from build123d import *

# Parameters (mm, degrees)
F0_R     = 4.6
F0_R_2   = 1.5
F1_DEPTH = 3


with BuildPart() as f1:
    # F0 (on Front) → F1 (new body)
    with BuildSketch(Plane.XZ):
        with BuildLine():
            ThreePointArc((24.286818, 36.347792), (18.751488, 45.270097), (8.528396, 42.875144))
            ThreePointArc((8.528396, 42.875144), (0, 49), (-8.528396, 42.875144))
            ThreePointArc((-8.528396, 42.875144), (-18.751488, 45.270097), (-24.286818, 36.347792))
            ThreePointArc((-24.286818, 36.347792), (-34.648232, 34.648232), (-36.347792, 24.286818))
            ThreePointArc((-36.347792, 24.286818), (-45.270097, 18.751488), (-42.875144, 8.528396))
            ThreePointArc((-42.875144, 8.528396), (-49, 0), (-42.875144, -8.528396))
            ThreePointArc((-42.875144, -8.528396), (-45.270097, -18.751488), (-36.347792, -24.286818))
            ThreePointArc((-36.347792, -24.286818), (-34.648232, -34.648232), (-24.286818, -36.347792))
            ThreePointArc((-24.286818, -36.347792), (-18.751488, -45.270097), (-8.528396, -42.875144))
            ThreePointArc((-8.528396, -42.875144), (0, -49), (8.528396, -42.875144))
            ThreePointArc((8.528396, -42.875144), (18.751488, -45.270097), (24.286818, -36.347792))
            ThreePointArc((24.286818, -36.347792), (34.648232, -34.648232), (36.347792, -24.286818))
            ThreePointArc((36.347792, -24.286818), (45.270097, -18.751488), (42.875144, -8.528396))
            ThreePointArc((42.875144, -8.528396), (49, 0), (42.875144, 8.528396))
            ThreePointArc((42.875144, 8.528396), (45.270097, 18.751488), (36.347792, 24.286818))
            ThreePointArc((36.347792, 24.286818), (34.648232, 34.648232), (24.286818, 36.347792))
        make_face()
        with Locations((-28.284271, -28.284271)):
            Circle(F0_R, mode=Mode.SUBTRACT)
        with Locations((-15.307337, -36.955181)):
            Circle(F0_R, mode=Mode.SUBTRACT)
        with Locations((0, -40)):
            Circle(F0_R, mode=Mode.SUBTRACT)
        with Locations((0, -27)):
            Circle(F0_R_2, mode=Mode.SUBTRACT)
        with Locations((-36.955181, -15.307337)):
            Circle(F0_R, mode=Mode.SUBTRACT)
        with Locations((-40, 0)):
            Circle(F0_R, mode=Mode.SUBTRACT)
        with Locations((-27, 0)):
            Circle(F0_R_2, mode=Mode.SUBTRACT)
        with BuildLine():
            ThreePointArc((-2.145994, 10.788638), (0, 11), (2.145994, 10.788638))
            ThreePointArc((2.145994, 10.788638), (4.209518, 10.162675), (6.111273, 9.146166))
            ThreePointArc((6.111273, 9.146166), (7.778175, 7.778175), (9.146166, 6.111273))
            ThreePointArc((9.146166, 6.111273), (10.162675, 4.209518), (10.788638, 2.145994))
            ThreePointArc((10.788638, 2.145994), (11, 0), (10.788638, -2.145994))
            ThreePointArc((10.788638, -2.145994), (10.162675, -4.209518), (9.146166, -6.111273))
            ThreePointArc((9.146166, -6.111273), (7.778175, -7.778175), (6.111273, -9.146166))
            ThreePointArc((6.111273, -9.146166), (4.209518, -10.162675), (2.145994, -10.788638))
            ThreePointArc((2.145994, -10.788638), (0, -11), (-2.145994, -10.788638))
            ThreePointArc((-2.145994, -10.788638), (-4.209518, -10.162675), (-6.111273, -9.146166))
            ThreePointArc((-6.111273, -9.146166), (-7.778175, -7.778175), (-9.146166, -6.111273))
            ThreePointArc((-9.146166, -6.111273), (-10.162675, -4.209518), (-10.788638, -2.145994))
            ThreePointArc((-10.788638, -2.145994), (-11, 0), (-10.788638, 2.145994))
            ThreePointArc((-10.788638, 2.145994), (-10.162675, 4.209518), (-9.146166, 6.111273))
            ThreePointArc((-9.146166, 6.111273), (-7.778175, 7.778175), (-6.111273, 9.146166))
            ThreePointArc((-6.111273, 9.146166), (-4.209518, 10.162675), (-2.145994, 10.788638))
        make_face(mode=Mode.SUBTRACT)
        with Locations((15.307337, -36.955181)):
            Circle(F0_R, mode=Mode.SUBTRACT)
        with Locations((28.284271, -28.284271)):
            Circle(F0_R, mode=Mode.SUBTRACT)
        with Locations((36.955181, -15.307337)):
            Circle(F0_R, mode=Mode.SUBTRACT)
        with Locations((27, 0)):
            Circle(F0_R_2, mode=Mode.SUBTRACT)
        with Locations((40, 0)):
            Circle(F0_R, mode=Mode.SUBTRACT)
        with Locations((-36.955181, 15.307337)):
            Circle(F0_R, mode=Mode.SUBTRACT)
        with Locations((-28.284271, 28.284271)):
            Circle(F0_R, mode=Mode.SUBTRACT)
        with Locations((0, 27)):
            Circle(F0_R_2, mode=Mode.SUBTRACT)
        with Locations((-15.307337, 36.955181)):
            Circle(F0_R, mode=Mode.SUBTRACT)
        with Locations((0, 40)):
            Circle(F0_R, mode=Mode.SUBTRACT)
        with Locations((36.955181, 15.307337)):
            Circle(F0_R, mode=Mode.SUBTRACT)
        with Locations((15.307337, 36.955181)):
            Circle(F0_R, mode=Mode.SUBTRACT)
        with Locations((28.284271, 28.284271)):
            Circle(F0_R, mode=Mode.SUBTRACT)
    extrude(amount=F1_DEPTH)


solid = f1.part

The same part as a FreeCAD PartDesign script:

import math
import FreeCAD as App
import Part
import Sketcher

doc = App.newDocument("Part")
body = doc.addObject("PartDesign::Body", "Body")

# Sketch on XZ plane
sketch1 = doc.addObject("Sketcher::SketchObject", "Sketch")
body.addObject(sketch1)
sketch1.AttachmentSupport = (doc.XZ_Plane, [""])
sketch1.MapMode = "FlatFace"
sketch1.addGeometry([
    Part.ArcOfCircle(Part.Circle(App.Vector(15.307337, 36.955181, 0), App.Vector(0, 0, 1), 9), math.radians(-3.869701), math.radians(138.869702)),  # 0
    Part.ArcOfCircle(Part.Circle(App.Vector(0, 40.000001, 0), App.Vector(0, 0, 1), 8.999999), math.radians(18.630295), math.radians(161.369705)),  # 1
    Part.ArcOfCircle(Part.Circle(App.Vector(-15.307337, 36.955181, 0), App.Vector(0, 0, 1), 9), math.radians(41.130298), math.radians(183.869701)),  # 2
    Part.ArcOfCircle(Part.Circle(App.Vector(-28.284271, 28.284271, 0), App.Vector(0, 0, 1), 9), math.radians(63.630301), math.radians(206.369699)),  # 3
    Part.ArcOfCircle(Part.Circle(App.Vector(-36.955181, 15.307337, 0), App.Vector(0, 0, 1), 9), math.radians(86.130299), math.radians(228.869702)),  # 4
    Part.ArcOfCircle(Part.Circle(App.Vector(-40.000001, 0, 0), App.Vector(0, 0, 1), 8.999999), math.radians(108.630295), math.radians(251.369705)),  # 5
    Part.ArcOfCircle(Part.Circle(App.Vector(-36.955181, -15.307337, 0), App.Vector(0, 0, 1), 9), math.radians(131.130298), math.radians(273.869701)),  # 6
    Part.ArcOfCircle(Part.Circle(App.Vector(-28.284271, -28.284271, 0), App.Vector(0, 0, 1), 9), math.radians(153.630301), math.radians(296.369699)),  # 7
    Part.ArcOfCircle(Part.Circle(App.Vector(-15.307337, -36.955181, 0), App.Vector(0, 0, 1), 9), math.radians(176.130299), math.radians(318.869702)),  # 8
    Part.ArcOfCircle(Part.Circle(App.Vector(0, -40.000001, 0), App.Vector(0, 0, 1), 8.999999), math.radians(-161.369705), math.radians(-18.630295)),  # 9
    Part.ArcOfCircle(Part.Circle(App.Vector(15.307337, -36.955181, 0), App.Vector(0, 0, 1), 9), math.radians(-138.869702), math.radians(3.869701)),  # 10
    Part.ArcOfCircle(Part.Circle(App.Vector(28.284271, -28.284271, 0), App.Vector(0, 0, 1), 9), math.radians(-116.369699), math.radians(26.369699)),  # 11
    Part.ArcOfCircle(Part.Circle(App.Vector(36.955181, -15.307337, 0), App.Vector(0, 0, 1), 9), math.radians(-93.869701), math.radians(48.869702)),  # 12
    Part.ArcOfCircle(Part.Circle(App.Vector(40.000001, 0, 0), App.Vector(0, 0, 1), 8.999999), math.radians(-71.369705), math.radians(71.369705)),  # 13
    Part.ArcOfCircle(Part.Circle(App.Vector(36.955181, 15.307337, 0), App.Vector(0, 0, 1), 9), math.radians(-48.869702), math.radians(93.869701)),  # 14
    Part.ArcOfCircle(Part.Circle(App.Vector(28.284271, 28.284271, 0), App.Vector(0, 0, 1), 9), math.radians(-26.369699), math.radians(116.369699)),  # 15
    Part.Circle(App.Vector(-28.284271, -28.284271, 0), App.Vector(0, 0, 1), 4.6),  # 16
    Part.Circle(App.Vector(-15.307337, -36.955181, 0), App.Vector(0, 0, 1), 4.6),  # 17
    Part.Circle(App.Vector(-36.955181, -15.307337, 0), App.Vector(0, 0, 1), 4.6),  # 18
    Part.Circle(App.Vector(0, -40, 0), App.Vector(0, 0, 1), 4.6),  # 19
    Part.Circle(App.Vector(15.307337, -36.955181, 0), App.Vector(0, 0, 1), 4.6),  # 20
    Part.Circle(App.Vector(0, -27, 0), App.Vector(0, 0, 1), 1.5),  # 21
    Part.Circle(App.Vector(28.284271, -28.284271, 0), App.Vector(0, 0, 1), 4.6),  # 22
    Part.Circle(App.Vector(36.955181, -15.307337, 0), App.Vector(0, 0, 1), 4.6),  # 23
    Part.Circle(App.Vector(-40, 0, 0), App.Vector(0, 0, 1), 4.6),  # 24
    Part.Circle(App.Vector(-27, 0, 0), App.Vector(0, 0, 1), 1.5),  # 25
    Part.Circle(App.Vector(-36.955181, 15.307337, 0), App.Vector(0, 0, 1), 4.6),  # 26
    Part.ArcOfCircle(Part.Circle(App.Vector(-0.000001, -0.000001, 0), App.Vector(0, 0, 1), 11.000001), math.radians(101.249997), math.radians(123.749995)),  # 27
    Part.ArcOfCircle(Part.Circle(App.Vector(0, 0, 0), App.Vector(0, 0, 1), 11), math.radians(78.749998), math.radians(101.250002)),  # 28
    Part.ArcOfCircle(Part.Circle(App.Vector(0.000001, -0.000001, 0), App.Vector(0, 0, 1), 11.000001), math.radians(56.250005), math.radians(78.750003)),  # 29
    Part.ArcOfCircle(Part.Circle(App.Vector(0.000004, 0.000004, 0), App.Vector(0, 0, 1), 10.999995), math.radians(33.749995), math.radians(56.250005)),  # 30
    Part.ArcOfCircle(Part.Circle(App.Vector(-0.000001, 0.000001, 0), App.Vector(0, 0, 1), 11.000001), math.radians(11.249997), math.radians(33.749995)),  # 31
    Part.ArcOfCircle(Part.Circle(App.Vector(0, 0, 0), App.Vector(0, 0, 1), 11), math.radians(-11.250002), math.radians(11.250002)),  # 32
    Part.ArcOfCircle(Part.Circle(App.Vector(-0.000001, -0.000001, 0), App.Vector(0, 0, 1), 11.000001), math.radians(-33.749995), math.radians(-11.249997)),  # 33
    Part.ArcOfCircle(Part.Circle(App.Vector(0.000004, -0.000004, 0), App.Vector(0, 0, 1), 10.999995), math.radians(-56.250005), math.radians(-33.749995)),  # 34
    Part.ArcOfCircle(Part.Circle(App.Vector(0.000001, 0.000001, 0), App.Vector(0, 0, 1), 11.000001), math.radians(-78.750003), math.radians(-56.250005)),  # 35
    Part.ArcOfCircle(Part.Circle(App.Vector(0, 0, 0), App.Vector(0, 0, 1), 11), math.radians(-101.250002), math.radians(-78.749998)),  # 36
    Part.ArcOfCircle(Part.Circle(App.Vector(-0.000001, 0.000001, 0), App.Vector(0, 0, 1), 11.000001), math.radians(-123.749995), math.radians(-101.249997)),  # 37
    Part.ArcOfCircle(Part.Circle(App.Vector(-0.000004, -0.000004, 0), App.Vector(0, 0, 1), 10.999995), math.radians(-146.250005), math.radians(-123.749995)),  # 38
    Part.ArcOfCircle(Part.Circle(App.Vector(0.000001, -0.000001, 0), App.Vector(0, 0, 1), 11.000001), math.radians(-168.750003), math.radians(-146.250005)),  # 39
    Part.ArcOfCircle(Part.Circle(App.Vector(0, 0, 0), App.Vector(0, 0, 1), 11), math.radians(168.749998), math.radians(191.250002)),  # 40
    Part.ArcOfCircle(Part.Circle(App.Vector(0.000001, 0.000001, 0), App.Vector(0, 0, 1), 11.000001), math.radians(146.250005), math.radians(168.750003)),  # 41
    Part.ArcOfCircle(Part.Circle(App.Vector(-0.000004, 0.000004, 0), App.Vector(0, 0, 1), 10.999995), math.radians(123.749995), math.radians(146.250005)),  # 42
    Part.Circle(App.Vector(-28.284271, 28.284271, 0), App.Vector(0, 0, 1), 4.6),  # 43
    Part.Circle(App.Vector(-15.307337, 36.955181, 0), App.Vector(0, 0, 1), 4.6),  # 44
    Part.Circle(App.Vector(27, 0, 0), App.Vector(0, 0, 1), 1.5),  # 45
    Part.Circle(App.Vector(40, 0, 0), App.Vector(0, 0, 1), 4.6),  # 46
    Part.Circle(App.Vector(36.955181, 15.307337, 0), App.Vector(0, 0, 1), 4.6),  # 47
    Part.Circle(App.Vector(0, 27, 0), App.Vector(0, 0, 1), 1.5),  # 48
    Part.Circle(App.Vector(0, 40, 0), App.Vector(0, 0, 1), 4.6),  # 49
    Part.Circle(App.Vector(15.307337, 36.955181, 0), App.Vector(0, 0, 1), 4.6),  # 50
    Part.Circle(App.Vector(28.284271, 28.284271, 0), App.Vector(0, 0, 1), 4.6),  # 51
], False)
sketch1.addConstraint([
    Sketcher.Constraint("Coincident", 0, 2, 1, 1),
    Sketcher.Constraint("Coincident", 1, 2, 2, 1),
    Sketcher.Constraint("Coincident", 2, 2, 3, 1),
    Sketcher.Constraint("Coincident", 3, 2, 4, 1),
    Sketcher.Constraint("Coincident", 4, 2, 5, 1),
    Sketcher.Constraint("Coincident", 5, 2, 6, 1),
    Sketcher.Constraint("Coincident", 6, 2, 7, 1),
    Sketcher.Constraint("Coincident", 7, 2, 8, 1),
    Sketcher.Constraint("Coincident", 8, 2, 9, 1),
    Sketcher.Constraint("Coincident", 9, 2, 10, 1),
    Sketcher.Constraint("Coincident", 10, 2, 11, 1),
    Sketcher.Constraint("Coincident", 11, 2, 12, 1),
    Sketcher.Constraint("Coincident", 12, 2, 13, 1),
    Sketcher.Constraint("Coincident", 13, 2, 14, 1),
    Sketcher.Constraint("Coincident", 14, 2, 15, 1),
    Sketcher.Constraint("Coincident", 15, 2, 0, 1),
    Sketcher.Constraint("Tangent", 27, 1, 28, 2),
    Sketcher.Constraint("Tangent", 28, 1, 29, 2),
    Sketcher.Constraint("Tangent", 29, 1, 30, 2),
    Sketcher.Constraint("Tangent", 30, 1, 31, 2),
    Sketcher.Constraint("Tangent", 31, 1, 32, 2),
    Sketcher.Constraint("Tangent", 32, 1, 33, 2),
    Sketcher.Constraint("Tangent", 33, 1, 34, 2),
    Sketcher.Constraint("Tangent", 34, 1, 35, 2),
    Sketcher.Constraint("Tangent", 35, 1, 36, 2),
    Sketcher.Constraint("Tangent", 36, 1, 37, 2),
    Sketcher.Constraint("Tangent", 37, 1, 38, 2),
    Sketcher.Constraint("Tangent", 38, 1, 39, 2),
    Sketcher.Constraint("Tangent", 39, 1, 40, 2),
    Sketcher.Constraint("Tangent", 40, 1, 41, 2),
    Sketcher.Constraint("Tangent", 41, 1, 42, 2),
    Sketcher.Constraint("Tangent", 42, 1, 27, 2),
    Sketcher.Constraint("Coincident", 27, 3, -1, 1),
    Sketcher.Constraint("Coincident", 29, 3, -1, 1),
    Sketcher.Constraint("Coincident", 31, 3, -1, 1),
    Sketcher.Constraint("Coincident", 33, 3, -1, 1),
    Sketcher.Constraint("Coincident", 35, 3, -1, 1),
    Sketcher.Constraint("Coincident", 37, 3, -1, 1),
    Sketcher.Constraint("Coincident", 39, 3, -1, 1),
    Sketcher.Constraint("Coincident", 16, 3, 7, 3),
    Sketcher.Constraint("Coincident", 17, 3, 8, 3),
    Sketcher.Constraint("Coincident", 18, 3, 6, 3),
    Sketcher.Constraint("Coincident", 19, 3, 9, 3),
    Sketcher.Constraint("Coincident", 20, 3, 10, 3),
    Sketcher.Constraint("Coincident", 22, 3, 11, 3),
    Sketcher.Constraint("Coincident", 23, 3, 12, 3),
    Sketcher.Constraint("Coincident", 24, 3, 5, 3),
    Sketcher.Constraint("Coincident", 26, 3, 4, 3),
    Sketcher.Constraint("Coincident", 43, 3, 3, 3),
    Sketcher.Constraint("Coincident", 44, 3, 2, 3),
    Sketcher.Constraint("Coincident", 46, 3, 13, 3),
    Sketcher.Constraint("Coincident", 47, 3, 14, 3),
    Sketcher.Constraint("Coincident", 49, 3, 1, 3),
    Sketcher.Constraint("Coincident", 50, 3, 0, 3),
    Sketcher.Constraint("Coincident", 51, 3, 15, 3),
    Sketcher.Constraint("Equal", 0, 1),
    Sketcher.Constraint("Equal", 1, 2),
    Sketcher.Constraint("Equal", 2, 3),
    Sketcher.Constraint("Equal", 3, 4),
    Sketcher.Constraint("Equal", 4, 5),
    Sketcher.Constraint("Equal", 5, 6),
    Sketcher.Constraint("Equal", 6, 7),
    Sketcher.Constraint("Equal", 7, 8),
    Sketcher.Constraint("Equal", 8, 9),
    Sketcher.Constraint("Equal", 9, 10),
    Sketcher.Constraint("Equal", 10, 11),
    Sketcher.Constraint("Equal", 11, 12),
    Sketcher.Constraint("Equal", 12, 13),
    Sketcher.Constraint("Equal", 13, 14),
    Sketcher.Constraint("Equal", 14, 15),
    Sketcher.Constraint("Equal", 16, 17),
    Sketcher.Constraint("Equal", 17, 18),
    Sketcher.Constraint("Equal", 18, 19),
    Sketcher.Constraint("Equal", 19, 20),
    Sketcher.Constraint("Equal", 20, 22),
    Sketcher.Constraint("Equal", 22, 23),
    Sketcher.Constraint("Equal", 23, 24),
    Sketcher.Constraint("Equal", 21, 25),
    Sketcher.Constraint("Equal", 24, 26),
    Sketcher.Constraint("Equal", 39, 40),
    Sketcher.Constraint("Equal", 26, 43),
    Sketcher.Constraint("Equal", 43, 44),
    Sketcher.Constraint("Equal", 25, 45),
    Sketcher.Constraint("Equal", 44, 46),
    Sketcher.Constraint("Equal", 46, 47),
    Sketcher.Constraint("Equal", 45, 48),
    Sketcher.Constraint("Equal", 47, 49),
    Sketcher.Constraint("Equal", 49, 50),
    Sketcher.Constraint("Equal", 50, 51),
    Sketcher.Constraint("Symmetric", 0, 3, 8, 3, -1, 1),
    Sketcher.Constraint("Symmetric", 1, 3, 9, 3, -1, 1),
    Sketcher.Constraint("Symmetric", 2, 3, 10, 3, -1, 1),
    Sketcher.Constraint("Symmetric", 3, 3, 11, 3, -1, 1),
    Sketcher.Constraint("Symmetric", 4, 3, 12, 3, -1, 1),
    Sketcher.Constraint("Symmetric", 5, 3, 13, 3, -1, 1),
    Sketcher.Constraint("Symmetric", 6, 3, 14, 3, -1, 1),
    Sketcher.Constraint("Symmetric", 7, 3, 15, 3, -1, 1),
    Sketcher.Constraint("Symmetric", 25, 3, 45, 3, -1, 1),
    Sketcher.Constraint("Symmetric", 21, 3, 48, 3, -1, 1),
    Sketcher.Constraint("Symmetric", 0, 3, 2, 3, -2),
    Sketcher.Constraint("Symmetric", 7, 3, 11, 3, -2),
    Sketcher.Constraint("Symmetric", 6, 3, 12, 3, -2),
    Sketcher.Constraint("PointOnObject", 1, 3, -2),
    Sketcher.Constraint("PointOnObject", 5, 3, -1),
    Sketcher.Constraint("PointOnObject", 21, 3, -2),
    Sketcher.Constraint("PointOnObject", 25, 3, -1),
    Sketcher.Constraint("Horizontal", 27, 1, 28, 1),
    Sketcher.Constraint("Horizontal", 35, 1, 36, 1),
    Sketcher.Constraint("Horizontal", 34, 1, 37, 1),
    Sketcher.Constraint("Horizontal", 33, 1, 38, 1),
    Sketcher.Constraint("Horizontal", 32, 1, 39, 1),
    Sketcher.Constraint("Horizontal", 31, 1, 40, 1),
    Sketcher.Constraint("Horizontal", 30, 1, 41, 1),
    Sketcher.Constraint("Horizontal", 29, 1, 42, 1),
    Sketcher.Constraint("Vertical", 31, 1, 32, 1),
    Sketcher.Constraint("Vertical", 30, 1, 33, 1),
    Sketcher.Constraint("Vertical", 29, 1, 34, 1),
    Sketcher.Constraint("Vertical", 28, 1, 35, 1),
    Sketcher.Constraint("Diameter", 21, 3.0),
    Sketcher.Constraint("Radius", 0, 9.0),
    Sketcher.Constraint("Radius", 27, 11.000001),
    Sketcher.Constraint("Diameter", 16, 9.2),
    Sketcher.Constraint("DistanceY", -1, 1, 1, 3, 40.000001),
    Sketcher.Constraint("DistanceX", 5, 3, -1, 1, 40.000001),
    Sketcher.Constraint("DistanceY", 21, 3, -1, 1, 27.0),
    Sketcher.Constraint("DistanceX", 25, 3, -1, 1, 27.0),
    Sketcher.Constraint("DistanceY", -1, 1, 0, 3, 36.955181),
    Sketcher.Constraint("DistanceX", 3, 3, -1, 1, 28.284271),
    Sketcher.Constraint("DistanceY", -1, 1, 3, 3, 28.284271),
    Sketcher.Constraint("DistanceX", 4, 3, -1, 1, 36.955181),
    Sketcher.Constraint("DistanceX", 2, 2, -1, 1, 24.286818),
    Sketcher.Constraint("DistanceX", 6, 2, -1, 1, 36.347792),
    Sketcher.Constraint("DistanceY", -1, 1, 27, 1, 10.788638),
    Sketcher.Constraint("DistanceX", -1, 1, 31, 1, 10.788638),
    Sketcher.Constraint("DistanceX", -1, 1, 29, 1, 6.111273),
    Sketcher.Constraint("DistanceX", -1, 1, 30, 1, 9.146166),
])
pad1 = doc.addObject("PartDesign::Pad", "Pad")
body.addObject(pad1)
pad1.Profile = sketch1
pad1.Length = 3

doc.recompute()
